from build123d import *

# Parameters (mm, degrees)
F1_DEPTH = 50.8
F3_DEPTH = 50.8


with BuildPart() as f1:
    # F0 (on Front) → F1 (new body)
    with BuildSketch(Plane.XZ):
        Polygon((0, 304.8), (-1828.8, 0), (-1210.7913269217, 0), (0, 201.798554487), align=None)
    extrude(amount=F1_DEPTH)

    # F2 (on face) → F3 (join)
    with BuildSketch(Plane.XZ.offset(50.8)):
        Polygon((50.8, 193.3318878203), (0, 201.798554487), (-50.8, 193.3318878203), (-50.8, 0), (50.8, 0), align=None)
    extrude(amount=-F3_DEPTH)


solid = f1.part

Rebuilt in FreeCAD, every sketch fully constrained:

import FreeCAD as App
import Part
import Sketcher
Q = App.Units.Quantity


def add_polygon(sketch, points):
    """Adds a closed chain of lines whose ends are joined by coincident constraints."""
    first, n = sketch.GeometryCount, len(points)
    for a, b in zip(points, points[1:] + points[:1]):
        sketch.addGeometry(Part.LineSegment(App.Vector(*a, 0), App.Vector(*b, 0)), False)
    for i in range(n):
        sketch.addConstraint(Sketcher.Constraint("Coincident", first + i, 2, first + (i + 1) % n, 1))

doc = App.newDocument("Part")
body = doc.addObject("PartDesign::Body", "Body")

# Sketch on XZ plane
sketch1 = doc.addObject("Sketcher::SketchObject", "Sketch")
body.addObject(sketch1)
sketch1.AttachmentSupport = (doc.XZ_Plane, [""])
sketch1.MapMode = "FlatFace"
add_polygon(sketch1, [(0, 305), (-1829, 0), (-1211, 0), (0, 202)])  # lines 0-3
sketch1.addConstraint([
    Sketcher.Constraint("Horizontal", 1),
    Sketcher.Constraint("Vertical", 3),
    Sketcher.Constraint("PointOnObject", 0, 2, -1),
    Sketcher.Constraint("PointOnObject", 2, 2, -2),
    Sketcher.Constraint("Parallel", 0, 2),
    Sketcher.Constraint("DistanceX", 0, 2, -1, 1, Q("72 in")),
    Sketcher.Constraint("DistanceY", -1, 1, 3, 2, Q("12 in")),
    Sketcher.Constraint("DistanceX", 1, 1, 1, 2, Q("618.008673 mm")),
])
pad1 = doc.addObject("PartDesign::Pad", "Pad")
body.addObject(pad1)
pad1.Profile = sketch1
pad1.Length = Q("2 in")

# Sketch on XZ plane
sketch2 = doc.addObject("Sketcher::SketchObject", "Sketch001")
body.addObject(sketch2)
sketch2.AttachmentSupport = (doc.XZ_Plane, [""])
sketch2.MapMode = "FlatFace"
sketch2.AttachmentOffset = App.Placement(App.Vector(0, 0, 2 * 25.4), App.Rotation())
add_polygon(sketch2, [(51, 193), (0, 202), (-51, 193), (-51, 0), (51, 0)])  # lines 0-4
sketch2.addConstraint([
    Sketcher.Constraint("Vertical", 2),
    Sketcher.Constraint("Horizontal", 3),
    Sketcher.Constraint("Vertical", 4),
    Sketcher.Constraint("Symmetric", 2, 2, 3, 2, -1, 1),
    Sketcher.Constraint("PointOnObject", 0, 2, -2),
    Sketcher.Constraint("Horizontal", 1, 2, 4, 2),
    Sketcher.Constraint("DistanceX", 3, 1, 3, 2, Q("4 in")),
    Sketcher.Constraint("DistanceY", 2, 2, 2, 1, Q("193.331888 mm")),
    Sketcher.Constraint("Distance", 0, Q("51.500723 mm")),
])
pad2 = doc.addObject("PartDesign::Pad", "Pad001")
body.addObject(pad2)
pad2.Profile = sketch2
pad2.Length = Q("2 in")
pad2.Reversed = True

doc.recompute()
